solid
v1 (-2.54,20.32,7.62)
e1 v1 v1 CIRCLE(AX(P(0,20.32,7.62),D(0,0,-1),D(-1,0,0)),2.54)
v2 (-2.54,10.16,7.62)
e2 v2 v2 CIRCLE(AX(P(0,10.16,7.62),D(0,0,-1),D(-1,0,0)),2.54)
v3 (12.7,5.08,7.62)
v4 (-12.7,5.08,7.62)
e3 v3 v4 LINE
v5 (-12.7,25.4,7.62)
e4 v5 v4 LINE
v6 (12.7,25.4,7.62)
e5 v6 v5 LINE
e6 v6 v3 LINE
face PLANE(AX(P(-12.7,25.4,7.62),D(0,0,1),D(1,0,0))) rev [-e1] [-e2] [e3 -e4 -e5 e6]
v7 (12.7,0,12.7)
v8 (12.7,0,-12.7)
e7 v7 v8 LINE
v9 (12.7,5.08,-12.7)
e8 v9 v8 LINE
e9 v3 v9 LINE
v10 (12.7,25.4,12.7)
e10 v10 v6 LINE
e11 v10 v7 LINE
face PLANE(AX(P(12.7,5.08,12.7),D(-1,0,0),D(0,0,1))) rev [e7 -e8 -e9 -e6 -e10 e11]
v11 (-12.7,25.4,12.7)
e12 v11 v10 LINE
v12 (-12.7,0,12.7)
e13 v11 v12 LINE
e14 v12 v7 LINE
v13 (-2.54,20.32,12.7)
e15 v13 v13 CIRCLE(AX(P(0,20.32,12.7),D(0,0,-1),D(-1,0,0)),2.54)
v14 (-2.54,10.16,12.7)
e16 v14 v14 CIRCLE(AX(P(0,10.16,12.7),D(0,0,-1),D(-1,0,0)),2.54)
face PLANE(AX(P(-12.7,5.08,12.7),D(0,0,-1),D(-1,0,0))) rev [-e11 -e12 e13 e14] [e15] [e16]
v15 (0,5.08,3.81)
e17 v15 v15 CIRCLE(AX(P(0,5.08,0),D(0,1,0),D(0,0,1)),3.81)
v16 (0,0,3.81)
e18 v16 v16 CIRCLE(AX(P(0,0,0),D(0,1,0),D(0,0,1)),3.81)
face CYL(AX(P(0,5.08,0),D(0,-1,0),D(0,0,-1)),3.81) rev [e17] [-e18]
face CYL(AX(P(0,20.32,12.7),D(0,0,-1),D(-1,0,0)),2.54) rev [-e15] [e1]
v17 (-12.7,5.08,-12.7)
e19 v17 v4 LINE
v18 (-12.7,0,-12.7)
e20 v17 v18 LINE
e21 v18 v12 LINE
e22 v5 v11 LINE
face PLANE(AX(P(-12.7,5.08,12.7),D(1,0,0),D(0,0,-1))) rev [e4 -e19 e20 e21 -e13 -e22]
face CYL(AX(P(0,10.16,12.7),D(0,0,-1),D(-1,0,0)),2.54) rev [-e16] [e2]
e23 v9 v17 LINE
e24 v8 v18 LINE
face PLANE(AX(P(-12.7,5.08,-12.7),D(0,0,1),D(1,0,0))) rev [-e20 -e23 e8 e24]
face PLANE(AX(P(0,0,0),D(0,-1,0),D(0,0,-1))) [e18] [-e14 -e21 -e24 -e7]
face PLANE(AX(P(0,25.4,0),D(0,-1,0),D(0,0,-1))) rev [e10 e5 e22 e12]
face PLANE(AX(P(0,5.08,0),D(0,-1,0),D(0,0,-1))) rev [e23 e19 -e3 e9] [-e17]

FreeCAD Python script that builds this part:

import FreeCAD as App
import Part
import Sketcher
from FreeCAD import Vector
Q = App.Units.Quantity


def add_polygon(sketch, points):
    """Adds a closed chain of lines whose ends are joined by coincident constraints."""
    first, n = sketch.GeometryCount, len(points)
    for a, b in zip(points, points[1:] + points[:1]):
        sketch.addGeometry(Part.LineSegment(App.Vector(*a, 0), App.Vector(*b, 0)), False)
    for i in range(n):
        sketch.addConstraint(Sketcher.Constraint("Coincident", first + i, 2, first + (i + 1) % n, 1))

doc = App.newDocument("Part")
body = doc.addObject("PartDesign::Body", "Body")

sketch1 = body.newObject("Sketcher::SketchObject", "Sketch")
sketch1.AttachmentSupport = (doc.getObject("XZ_Plane"), [""])
sketch1.MapMode = "FlatFace"
add_polygon(sketch1, [(-12.7, -12.7), (-12.7, 12.7), (12.7, 12.7), (12.7, -12.7)])
sketch1.addGeometry(Part.Circle(Vector(0, 0, 0), Vector(0, 0, 1), 3.8), False)
sketch1.addConstraint(Sketcher.Constraint("Vertical", 0))
sketch1.addConstraint(Sketcher.Constraint("Horizontal", 1))
sketch1.addConstraint(Sketcher.Constraint("Vertical", 2))
sketch1.addConstraint(Sketcher.Constraint("Horizontal", 3))
sketch1.addConstraint(Sketcher.Constraint("Coincident", 4, 3, -1, 1))
sketch1.addConstraint(Sketcher.Constraint("Symmetric", 0, 2, 2, 2, -1, 1))
sketch1.addConstraint(Sketcher.Constraint("Equal", 3, 0))
sketch1.addConstraint(Sketcher.Constraint("Diameter", 4, Q("0.3 in")))
sketch1.addConstraint(Sketcher.Constraint("DistanceX", 1, 1, 1, 2, Q("1 in")))
pad1 = body.newObject("PartDesign::Pad", "Pad")
pad1.Profile = sketch1
pad1.Length = Q("0.2 in")
pad1.Reversed = True

sketch2 = body.newObject("Sketcher::SketchObject", "Sketch001")
sketch2.AttachmentSupport = (doc.getObject("XZ_Plane"), [""])
sketch2.MapMode = "FlatFace"
sketch2.AttachmentOffset = App.Placement(Vector(0, 0, -0.2 * 25.4), App.Rotation())
add_polygon(sketch2, [(-13, 8), (-13, 13), (13, 13), (13, 8)])
sketch2.addConstraint(Sketcher.Constraint("Vertical", 0))
sketch2.addConstraint(Sketcher.Constraint("Horizontal", 1))
sketch2.addConstraint(Sketcher.Constraint("Vertical", 2))
sketch2.addConstraint(Sketcher.Constraint("Horizontal", 3))
sketch2.addConstraint(Sketcher.Constraint("DistanceX", 1, 1, 1, 2, Q("1 in")))
sketch2.addConstraint(Sketcher.Constraint("DistanceY", 0, 1, 0, 2, Q("0.2 in")))
sketch2.addConstraint(Sketcher.Constraint("DistanceX", 0, 2, -1, 1, Q("0.5 in")))
sketch2.addConstraint(Sketcher.Constraint("DistanceY", -1, 1, 0, 2, Q("0.5 in")))
pad2 = body.newObject("PartDesign::Pad", "Pad001")
pad2.Profile = sketch2
pad2.Length = Q("0.8 in")
pad2.Reversed = True

sketch3 = body.newObject("Sketcher::SketchObject", "Sketch002")
sketch3.AttachmentSupport = (doc.getObject("XY_Plane"), [""])
sketch3.MapMode = "FlatFace"
sketch3.AttachmentOffset = App.Placement(Vector(0, 0, 0.3 * 25.4), App.Rotation())
sketch3.addGeometry(Part.Circle(Vector(0, 20.3, 0), Vector(0, 0, 1), 2.5), False)
sketch3.addGeometry(Part.Circle(Vector(0, 10.2, 0), Vector(0, 0, 1), 2.5), False)
sketch3.addConstraint(Sketcher.Constraint("Equal", 0, 1))
sketch3.addConstraint(Sketcher.Constraint("PointOnObject", 0, 3, -2))
sketch3.addConstraint(Sketcher.Constraint("PointOnObject", 1, 3, -2))
sketch3.addConstraint(Sketcher.Constraint("Diameter", 0, Q("0.2 in")))
sketch3.addConstraint(Sketcher.Constraint("DistanceY", -1, 1, 0, 3, Q("0.8 in")))
sketch3.addConstraint(Sketcher.Constraint("DistanceY", -1, 1, 1, 3, Q("0.4 in")))
pocket1 = body.newObject("PartDesign::Pocket", "Pocket")
pocket1.Profile = sketch3
pocket1.Type = "ThroughAll"
pocket1.Reversed = True

doc.recompute()
